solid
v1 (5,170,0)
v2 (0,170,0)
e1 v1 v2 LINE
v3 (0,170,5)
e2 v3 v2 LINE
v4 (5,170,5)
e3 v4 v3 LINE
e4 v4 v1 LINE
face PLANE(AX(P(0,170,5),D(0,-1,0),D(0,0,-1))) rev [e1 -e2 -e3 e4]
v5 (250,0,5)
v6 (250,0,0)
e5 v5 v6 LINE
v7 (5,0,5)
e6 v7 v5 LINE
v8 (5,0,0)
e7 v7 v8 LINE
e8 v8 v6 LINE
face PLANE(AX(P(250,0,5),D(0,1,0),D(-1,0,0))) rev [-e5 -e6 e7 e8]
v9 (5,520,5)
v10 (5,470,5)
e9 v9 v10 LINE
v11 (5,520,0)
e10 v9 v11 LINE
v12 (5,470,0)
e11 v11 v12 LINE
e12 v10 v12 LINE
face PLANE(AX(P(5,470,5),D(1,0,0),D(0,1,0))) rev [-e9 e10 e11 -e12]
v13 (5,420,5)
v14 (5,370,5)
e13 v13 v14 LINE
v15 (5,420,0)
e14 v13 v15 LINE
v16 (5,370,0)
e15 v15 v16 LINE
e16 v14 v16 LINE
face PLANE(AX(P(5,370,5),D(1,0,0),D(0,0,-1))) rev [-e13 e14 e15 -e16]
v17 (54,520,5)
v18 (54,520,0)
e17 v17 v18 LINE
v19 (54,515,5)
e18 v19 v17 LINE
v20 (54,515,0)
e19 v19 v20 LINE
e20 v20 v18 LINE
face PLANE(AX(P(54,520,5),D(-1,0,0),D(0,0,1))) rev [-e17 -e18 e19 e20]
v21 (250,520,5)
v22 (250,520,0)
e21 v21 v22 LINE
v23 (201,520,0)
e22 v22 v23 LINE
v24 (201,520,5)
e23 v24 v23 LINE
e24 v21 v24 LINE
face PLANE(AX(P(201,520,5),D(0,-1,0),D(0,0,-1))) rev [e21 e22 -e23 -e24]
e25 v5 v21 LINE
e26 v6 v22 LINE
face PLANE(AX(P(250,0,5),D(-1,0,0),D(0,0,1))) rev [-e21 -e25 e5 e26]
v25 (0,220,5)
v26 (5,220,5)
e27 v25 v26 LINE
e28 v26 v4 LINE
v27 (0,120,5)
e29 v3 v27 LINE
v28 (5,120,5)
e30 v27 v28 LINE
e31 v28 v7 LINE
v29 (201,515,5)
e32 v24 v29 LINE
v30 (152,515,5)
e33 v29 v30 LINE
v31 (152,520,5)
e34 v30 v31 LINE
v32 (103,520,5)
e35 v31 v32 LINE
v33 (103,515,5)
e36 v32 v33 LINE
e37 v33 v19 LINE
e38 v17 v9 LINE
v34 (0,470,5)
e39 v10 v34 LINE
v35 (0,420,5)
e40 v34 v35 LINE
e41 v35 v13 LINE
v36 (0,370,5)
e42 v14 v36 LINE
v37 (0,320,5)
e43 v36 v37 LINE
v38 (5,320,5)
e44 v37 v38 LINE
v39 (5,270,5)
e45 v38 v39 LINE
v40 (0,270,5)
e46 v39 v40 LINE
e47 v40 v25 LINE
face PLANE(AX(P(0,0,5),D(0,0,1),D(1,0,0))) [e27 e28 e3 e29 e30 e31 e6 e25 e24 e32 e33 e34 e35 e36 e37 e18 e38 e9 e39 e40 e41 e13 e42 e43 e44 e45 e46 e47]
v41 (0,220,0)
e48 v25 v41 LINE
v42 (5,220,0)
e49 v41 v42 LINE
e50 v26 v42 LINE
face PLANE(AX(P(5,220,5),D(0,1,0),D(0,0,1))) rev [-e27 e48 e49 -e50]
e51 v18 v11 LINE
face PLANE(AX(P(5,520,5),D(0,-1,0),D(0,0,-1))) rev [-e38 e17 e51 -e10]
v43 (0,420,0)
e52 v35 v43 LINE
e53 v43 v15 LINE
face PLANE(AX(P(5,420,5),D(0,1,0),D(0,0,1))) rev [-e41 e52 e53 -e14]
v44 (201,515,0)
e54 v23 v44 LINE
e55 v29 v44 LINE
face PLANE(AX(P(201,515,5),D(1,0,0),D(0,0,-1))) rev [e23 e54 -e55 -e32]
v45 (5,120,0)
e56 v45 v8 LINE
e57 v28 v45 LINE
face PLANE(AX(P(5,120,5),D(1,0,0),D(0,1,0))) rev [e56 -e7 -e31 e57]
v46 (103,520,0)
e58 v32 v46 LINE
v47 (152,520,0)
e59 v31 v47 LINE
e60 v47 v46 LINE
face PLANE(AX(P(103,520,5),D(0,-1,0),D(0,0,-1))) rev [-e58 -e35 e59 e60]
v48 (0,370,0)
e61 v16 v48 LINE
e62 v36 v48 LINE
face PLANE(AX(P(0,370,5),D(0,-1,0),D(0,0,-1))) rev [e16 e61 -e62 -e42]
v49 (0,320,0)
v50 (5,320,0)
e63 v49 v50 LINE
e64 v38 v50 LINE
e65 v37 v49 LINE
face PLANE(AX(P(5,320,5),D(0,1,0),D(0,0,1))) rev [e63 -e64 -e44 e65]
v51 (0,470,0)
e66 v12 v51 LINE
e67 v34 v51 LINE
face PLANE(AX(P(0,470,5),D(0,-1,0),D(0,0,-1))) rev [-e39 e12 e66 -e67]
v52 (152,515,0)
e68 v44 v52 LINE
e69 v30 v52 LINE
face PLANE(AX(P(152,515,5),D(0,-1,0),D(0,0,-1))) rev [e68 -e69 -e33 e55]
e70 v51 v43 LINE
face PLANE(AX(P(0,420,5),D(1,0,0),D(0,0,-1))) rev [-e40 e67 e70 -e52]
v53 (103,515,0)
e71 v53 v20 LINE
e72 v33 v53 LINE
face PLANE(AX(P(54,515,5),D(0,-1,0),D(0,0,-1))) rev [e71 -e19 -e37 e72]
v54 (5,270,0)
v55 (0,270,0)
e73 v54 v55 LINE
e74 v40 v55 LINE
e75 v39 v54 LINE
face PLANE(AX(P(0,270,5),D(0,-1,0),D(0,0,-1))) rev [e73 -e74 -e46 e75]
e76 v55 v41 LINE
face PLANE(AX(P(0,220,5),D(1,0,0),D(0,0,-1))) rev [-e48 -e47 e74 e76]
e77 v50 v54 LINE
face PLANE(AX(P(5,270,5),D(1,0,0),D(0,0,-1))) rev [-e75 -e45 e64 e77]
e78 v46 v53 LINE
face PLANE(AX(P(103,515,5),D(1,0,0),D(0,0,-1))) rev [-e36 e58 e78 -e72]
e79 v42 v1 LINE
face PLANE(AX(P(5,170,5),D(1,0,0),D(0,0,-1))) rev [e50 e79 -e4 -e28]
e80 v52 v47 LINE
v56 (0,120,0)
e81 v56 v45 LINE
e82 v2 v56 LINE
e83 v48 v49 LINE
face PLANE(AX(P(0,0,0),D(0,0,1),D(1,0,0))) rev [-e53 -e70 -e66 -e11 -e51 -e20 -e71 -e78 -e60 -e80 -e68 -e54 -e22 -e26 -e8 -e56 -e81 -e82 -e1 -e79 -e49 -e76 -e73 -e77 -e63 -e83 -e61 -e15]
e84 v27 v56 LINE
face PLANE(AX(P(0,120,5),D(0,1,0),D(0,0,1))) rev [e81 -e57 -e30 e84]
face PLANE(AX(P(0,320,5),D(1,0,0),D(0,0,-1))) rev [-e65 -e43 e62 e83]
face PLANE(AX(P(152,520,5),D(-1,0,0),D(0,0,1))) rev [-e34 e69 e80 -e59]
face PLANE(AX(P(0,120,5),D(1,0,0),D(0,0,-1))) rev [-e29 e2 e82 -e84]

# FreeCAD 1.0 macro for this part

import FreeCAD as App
import Part
import Sketcher
from FreeCAD import Vector
Q = App.Units.Quantity


def add_polygon(sketch, points):
    """Adds a closed chain of lines whose ends are joined by coincident constraints."""
    first, n = sketch.GeometryCount, len(points)
    for a, b in zip(points, points[1:] + points[:1]):
        sketch.addGeometry(Part.LineSegment(App.Vector(*a, 0), App.Vector(*b, 0)), False)
    for i in range(n):
        sketch.addConstraint(Sketcher.Constraint("Coincident", first + i, 2, first + (i + 1) % n, 1))

doc = App.newDocument("Part")
body = doc.addObject("PartDesign::Body", "Body")

# Sketch on XY plane
sketch1 = doc.addObject("Sketcher::SketchObject", "Sketch")
body.addObject(sketch1)
sketch1.AttachmentSupport = (doc.XY_Plane, [""])
sketch1.MapMode = "FlatFace"
add_polygon(sketch1, [(0, 170), (0, 120), (5, 120), (5, 0), (250, 0), (250, 520), (201, 520), (201, 515), (152, 515), (152, 520), (103, 520), (103, 515), (54, 515), (54, 520), (5, 520), (5, 470), (0, 470), (0, 420), (5, 420), (5, 370), (0, 370), (0, 320), (5, 320), (5, 270), (0, 270), (0, 220), (5, 220), (5, 170)])  # lines 0-27
sketch1.addConstraint([
    Sketcher.Constraint("Vertical", 0),
    Sketcher.Constraint("Horizontal", 1),
    Sketcher.Constraint("Vertical", 2),
    Sketcher.Constraint("Horizontal", 3),
    Sketcher.Constraint("Vertical", 4),
    Sketcher.Constraint("Horizontal", 5),
    Sketcher.Constraint("Vertical", 6),
    Sketcher.Constraint("Horizontal", 7),
    Sketcher.Constraint("Vertical", 8),
    Sketcher.Constraint("Horizontal", 9),
    Sketcher.Constraint("Vertical", 10),
    Sketcher.Constraint("Horizontal", 11),
    Sketcher.Constraint("Vertical", 12),
    Sketcher.Constraint("Horizontal", 13),
    Sketcher.Constraint("Vertical", 14),
    Sketcher.Constraint("Horizontal", 15),
    Sketcher.Constraint("Vertical", 16),
    Sketcher.Constraint("Horizontal", 17),
    Sketcher.Constraint("Vertical", 18),
    Sketcher.Constraint("Horizontal", 19),
    Sketcher.Constraint("Vertical", 20),
    Sketcher.Constraint("Horizontal", 21),
    Sketcher.Constraint("Vertical", 22),
    Sketcher.Constraint("Horizontal", 23),
    Sketcher.Constraint("Vertical", 24),
    Sketcher.Constraint("Horizontal", 25),
    Sketcher.Constraint("Vertical", 26),
    Sketcher.Constraint("Horizontal", 27),
    Sketcher.Constraint("PointOnObject", 0, 2, -2),
    Sketcher.Constraint("PointOnObject", 2, 2, -1),
    Sketcher.Constraint("PointOnObject", 15, 2, -2),
    Sketcher.Constraint("PointOnObject", 19, 2, -2),
    Sketcher.Constraint("PointOnObject", 23, 2, -2),
    Sketcher.Constraint("Horizontal", 5, 2, 8, 2),
    Sketcher.Constraint("Horizontal", 7, 2, 10, 2),
    Sketcher.Constraint("Horizontal", 9, 2, 12, 2),
    Sketcher.Constraint("Vertical", 2, 2, 13, 2),
    Sketcher.Constraint("Vertical", 14, 2, 17, 2),
    Sketcher.Constraint("Vertical", 18, 2, 21, 2),
    Sketcher.Constraint("Vertical", 22, 2, 25, 2),
    Sketcher.Constraint("Equal", 5, 7),
    Sketcher.Constraint("Equal", 7, 9),
    Sketcher.Constraint("Equal", 9, 11),
    Sketcher.Constraint("Equal", 11, 13),
    Sketcher.Constraint("Equal", 27, 6),
    Sketcher.Constraint("Equal", 0, 14),
    Sketcher.Constraint("Equal", 14, 16),
    Sketcher.Constraint("Equal", 16, 18),
    Sketcher.Constraint("Equal", 18, 20),
    Sketcher.Constraint("Equal", 20, 22),
    Sketcher.Constraint("Equal", 22, 24),
    Sketcher.Constraint("Equal", 24, 26),
    Sketcher.Constraint("DistanceX", 1, 1, 1, 2, Q("5 mm")),
    Sketcher.Constraint("DistanceX", 3, 1, 3, 2, Q("245 mm")),
    Sketcher.Constraint("DistanceY", 0, 2, 0, 1, Q("50 mm")),
    Sketcher.Constraint("DistanceY", 2, 2, 2, 1, Q("120 mm")),
])
pad1 = doc.addObject("PartDesign::Pad", "Pad")
body.addObject(pad1)
pad1.Profile = sketch1
pad1.Length = 5

doc.recompute()
